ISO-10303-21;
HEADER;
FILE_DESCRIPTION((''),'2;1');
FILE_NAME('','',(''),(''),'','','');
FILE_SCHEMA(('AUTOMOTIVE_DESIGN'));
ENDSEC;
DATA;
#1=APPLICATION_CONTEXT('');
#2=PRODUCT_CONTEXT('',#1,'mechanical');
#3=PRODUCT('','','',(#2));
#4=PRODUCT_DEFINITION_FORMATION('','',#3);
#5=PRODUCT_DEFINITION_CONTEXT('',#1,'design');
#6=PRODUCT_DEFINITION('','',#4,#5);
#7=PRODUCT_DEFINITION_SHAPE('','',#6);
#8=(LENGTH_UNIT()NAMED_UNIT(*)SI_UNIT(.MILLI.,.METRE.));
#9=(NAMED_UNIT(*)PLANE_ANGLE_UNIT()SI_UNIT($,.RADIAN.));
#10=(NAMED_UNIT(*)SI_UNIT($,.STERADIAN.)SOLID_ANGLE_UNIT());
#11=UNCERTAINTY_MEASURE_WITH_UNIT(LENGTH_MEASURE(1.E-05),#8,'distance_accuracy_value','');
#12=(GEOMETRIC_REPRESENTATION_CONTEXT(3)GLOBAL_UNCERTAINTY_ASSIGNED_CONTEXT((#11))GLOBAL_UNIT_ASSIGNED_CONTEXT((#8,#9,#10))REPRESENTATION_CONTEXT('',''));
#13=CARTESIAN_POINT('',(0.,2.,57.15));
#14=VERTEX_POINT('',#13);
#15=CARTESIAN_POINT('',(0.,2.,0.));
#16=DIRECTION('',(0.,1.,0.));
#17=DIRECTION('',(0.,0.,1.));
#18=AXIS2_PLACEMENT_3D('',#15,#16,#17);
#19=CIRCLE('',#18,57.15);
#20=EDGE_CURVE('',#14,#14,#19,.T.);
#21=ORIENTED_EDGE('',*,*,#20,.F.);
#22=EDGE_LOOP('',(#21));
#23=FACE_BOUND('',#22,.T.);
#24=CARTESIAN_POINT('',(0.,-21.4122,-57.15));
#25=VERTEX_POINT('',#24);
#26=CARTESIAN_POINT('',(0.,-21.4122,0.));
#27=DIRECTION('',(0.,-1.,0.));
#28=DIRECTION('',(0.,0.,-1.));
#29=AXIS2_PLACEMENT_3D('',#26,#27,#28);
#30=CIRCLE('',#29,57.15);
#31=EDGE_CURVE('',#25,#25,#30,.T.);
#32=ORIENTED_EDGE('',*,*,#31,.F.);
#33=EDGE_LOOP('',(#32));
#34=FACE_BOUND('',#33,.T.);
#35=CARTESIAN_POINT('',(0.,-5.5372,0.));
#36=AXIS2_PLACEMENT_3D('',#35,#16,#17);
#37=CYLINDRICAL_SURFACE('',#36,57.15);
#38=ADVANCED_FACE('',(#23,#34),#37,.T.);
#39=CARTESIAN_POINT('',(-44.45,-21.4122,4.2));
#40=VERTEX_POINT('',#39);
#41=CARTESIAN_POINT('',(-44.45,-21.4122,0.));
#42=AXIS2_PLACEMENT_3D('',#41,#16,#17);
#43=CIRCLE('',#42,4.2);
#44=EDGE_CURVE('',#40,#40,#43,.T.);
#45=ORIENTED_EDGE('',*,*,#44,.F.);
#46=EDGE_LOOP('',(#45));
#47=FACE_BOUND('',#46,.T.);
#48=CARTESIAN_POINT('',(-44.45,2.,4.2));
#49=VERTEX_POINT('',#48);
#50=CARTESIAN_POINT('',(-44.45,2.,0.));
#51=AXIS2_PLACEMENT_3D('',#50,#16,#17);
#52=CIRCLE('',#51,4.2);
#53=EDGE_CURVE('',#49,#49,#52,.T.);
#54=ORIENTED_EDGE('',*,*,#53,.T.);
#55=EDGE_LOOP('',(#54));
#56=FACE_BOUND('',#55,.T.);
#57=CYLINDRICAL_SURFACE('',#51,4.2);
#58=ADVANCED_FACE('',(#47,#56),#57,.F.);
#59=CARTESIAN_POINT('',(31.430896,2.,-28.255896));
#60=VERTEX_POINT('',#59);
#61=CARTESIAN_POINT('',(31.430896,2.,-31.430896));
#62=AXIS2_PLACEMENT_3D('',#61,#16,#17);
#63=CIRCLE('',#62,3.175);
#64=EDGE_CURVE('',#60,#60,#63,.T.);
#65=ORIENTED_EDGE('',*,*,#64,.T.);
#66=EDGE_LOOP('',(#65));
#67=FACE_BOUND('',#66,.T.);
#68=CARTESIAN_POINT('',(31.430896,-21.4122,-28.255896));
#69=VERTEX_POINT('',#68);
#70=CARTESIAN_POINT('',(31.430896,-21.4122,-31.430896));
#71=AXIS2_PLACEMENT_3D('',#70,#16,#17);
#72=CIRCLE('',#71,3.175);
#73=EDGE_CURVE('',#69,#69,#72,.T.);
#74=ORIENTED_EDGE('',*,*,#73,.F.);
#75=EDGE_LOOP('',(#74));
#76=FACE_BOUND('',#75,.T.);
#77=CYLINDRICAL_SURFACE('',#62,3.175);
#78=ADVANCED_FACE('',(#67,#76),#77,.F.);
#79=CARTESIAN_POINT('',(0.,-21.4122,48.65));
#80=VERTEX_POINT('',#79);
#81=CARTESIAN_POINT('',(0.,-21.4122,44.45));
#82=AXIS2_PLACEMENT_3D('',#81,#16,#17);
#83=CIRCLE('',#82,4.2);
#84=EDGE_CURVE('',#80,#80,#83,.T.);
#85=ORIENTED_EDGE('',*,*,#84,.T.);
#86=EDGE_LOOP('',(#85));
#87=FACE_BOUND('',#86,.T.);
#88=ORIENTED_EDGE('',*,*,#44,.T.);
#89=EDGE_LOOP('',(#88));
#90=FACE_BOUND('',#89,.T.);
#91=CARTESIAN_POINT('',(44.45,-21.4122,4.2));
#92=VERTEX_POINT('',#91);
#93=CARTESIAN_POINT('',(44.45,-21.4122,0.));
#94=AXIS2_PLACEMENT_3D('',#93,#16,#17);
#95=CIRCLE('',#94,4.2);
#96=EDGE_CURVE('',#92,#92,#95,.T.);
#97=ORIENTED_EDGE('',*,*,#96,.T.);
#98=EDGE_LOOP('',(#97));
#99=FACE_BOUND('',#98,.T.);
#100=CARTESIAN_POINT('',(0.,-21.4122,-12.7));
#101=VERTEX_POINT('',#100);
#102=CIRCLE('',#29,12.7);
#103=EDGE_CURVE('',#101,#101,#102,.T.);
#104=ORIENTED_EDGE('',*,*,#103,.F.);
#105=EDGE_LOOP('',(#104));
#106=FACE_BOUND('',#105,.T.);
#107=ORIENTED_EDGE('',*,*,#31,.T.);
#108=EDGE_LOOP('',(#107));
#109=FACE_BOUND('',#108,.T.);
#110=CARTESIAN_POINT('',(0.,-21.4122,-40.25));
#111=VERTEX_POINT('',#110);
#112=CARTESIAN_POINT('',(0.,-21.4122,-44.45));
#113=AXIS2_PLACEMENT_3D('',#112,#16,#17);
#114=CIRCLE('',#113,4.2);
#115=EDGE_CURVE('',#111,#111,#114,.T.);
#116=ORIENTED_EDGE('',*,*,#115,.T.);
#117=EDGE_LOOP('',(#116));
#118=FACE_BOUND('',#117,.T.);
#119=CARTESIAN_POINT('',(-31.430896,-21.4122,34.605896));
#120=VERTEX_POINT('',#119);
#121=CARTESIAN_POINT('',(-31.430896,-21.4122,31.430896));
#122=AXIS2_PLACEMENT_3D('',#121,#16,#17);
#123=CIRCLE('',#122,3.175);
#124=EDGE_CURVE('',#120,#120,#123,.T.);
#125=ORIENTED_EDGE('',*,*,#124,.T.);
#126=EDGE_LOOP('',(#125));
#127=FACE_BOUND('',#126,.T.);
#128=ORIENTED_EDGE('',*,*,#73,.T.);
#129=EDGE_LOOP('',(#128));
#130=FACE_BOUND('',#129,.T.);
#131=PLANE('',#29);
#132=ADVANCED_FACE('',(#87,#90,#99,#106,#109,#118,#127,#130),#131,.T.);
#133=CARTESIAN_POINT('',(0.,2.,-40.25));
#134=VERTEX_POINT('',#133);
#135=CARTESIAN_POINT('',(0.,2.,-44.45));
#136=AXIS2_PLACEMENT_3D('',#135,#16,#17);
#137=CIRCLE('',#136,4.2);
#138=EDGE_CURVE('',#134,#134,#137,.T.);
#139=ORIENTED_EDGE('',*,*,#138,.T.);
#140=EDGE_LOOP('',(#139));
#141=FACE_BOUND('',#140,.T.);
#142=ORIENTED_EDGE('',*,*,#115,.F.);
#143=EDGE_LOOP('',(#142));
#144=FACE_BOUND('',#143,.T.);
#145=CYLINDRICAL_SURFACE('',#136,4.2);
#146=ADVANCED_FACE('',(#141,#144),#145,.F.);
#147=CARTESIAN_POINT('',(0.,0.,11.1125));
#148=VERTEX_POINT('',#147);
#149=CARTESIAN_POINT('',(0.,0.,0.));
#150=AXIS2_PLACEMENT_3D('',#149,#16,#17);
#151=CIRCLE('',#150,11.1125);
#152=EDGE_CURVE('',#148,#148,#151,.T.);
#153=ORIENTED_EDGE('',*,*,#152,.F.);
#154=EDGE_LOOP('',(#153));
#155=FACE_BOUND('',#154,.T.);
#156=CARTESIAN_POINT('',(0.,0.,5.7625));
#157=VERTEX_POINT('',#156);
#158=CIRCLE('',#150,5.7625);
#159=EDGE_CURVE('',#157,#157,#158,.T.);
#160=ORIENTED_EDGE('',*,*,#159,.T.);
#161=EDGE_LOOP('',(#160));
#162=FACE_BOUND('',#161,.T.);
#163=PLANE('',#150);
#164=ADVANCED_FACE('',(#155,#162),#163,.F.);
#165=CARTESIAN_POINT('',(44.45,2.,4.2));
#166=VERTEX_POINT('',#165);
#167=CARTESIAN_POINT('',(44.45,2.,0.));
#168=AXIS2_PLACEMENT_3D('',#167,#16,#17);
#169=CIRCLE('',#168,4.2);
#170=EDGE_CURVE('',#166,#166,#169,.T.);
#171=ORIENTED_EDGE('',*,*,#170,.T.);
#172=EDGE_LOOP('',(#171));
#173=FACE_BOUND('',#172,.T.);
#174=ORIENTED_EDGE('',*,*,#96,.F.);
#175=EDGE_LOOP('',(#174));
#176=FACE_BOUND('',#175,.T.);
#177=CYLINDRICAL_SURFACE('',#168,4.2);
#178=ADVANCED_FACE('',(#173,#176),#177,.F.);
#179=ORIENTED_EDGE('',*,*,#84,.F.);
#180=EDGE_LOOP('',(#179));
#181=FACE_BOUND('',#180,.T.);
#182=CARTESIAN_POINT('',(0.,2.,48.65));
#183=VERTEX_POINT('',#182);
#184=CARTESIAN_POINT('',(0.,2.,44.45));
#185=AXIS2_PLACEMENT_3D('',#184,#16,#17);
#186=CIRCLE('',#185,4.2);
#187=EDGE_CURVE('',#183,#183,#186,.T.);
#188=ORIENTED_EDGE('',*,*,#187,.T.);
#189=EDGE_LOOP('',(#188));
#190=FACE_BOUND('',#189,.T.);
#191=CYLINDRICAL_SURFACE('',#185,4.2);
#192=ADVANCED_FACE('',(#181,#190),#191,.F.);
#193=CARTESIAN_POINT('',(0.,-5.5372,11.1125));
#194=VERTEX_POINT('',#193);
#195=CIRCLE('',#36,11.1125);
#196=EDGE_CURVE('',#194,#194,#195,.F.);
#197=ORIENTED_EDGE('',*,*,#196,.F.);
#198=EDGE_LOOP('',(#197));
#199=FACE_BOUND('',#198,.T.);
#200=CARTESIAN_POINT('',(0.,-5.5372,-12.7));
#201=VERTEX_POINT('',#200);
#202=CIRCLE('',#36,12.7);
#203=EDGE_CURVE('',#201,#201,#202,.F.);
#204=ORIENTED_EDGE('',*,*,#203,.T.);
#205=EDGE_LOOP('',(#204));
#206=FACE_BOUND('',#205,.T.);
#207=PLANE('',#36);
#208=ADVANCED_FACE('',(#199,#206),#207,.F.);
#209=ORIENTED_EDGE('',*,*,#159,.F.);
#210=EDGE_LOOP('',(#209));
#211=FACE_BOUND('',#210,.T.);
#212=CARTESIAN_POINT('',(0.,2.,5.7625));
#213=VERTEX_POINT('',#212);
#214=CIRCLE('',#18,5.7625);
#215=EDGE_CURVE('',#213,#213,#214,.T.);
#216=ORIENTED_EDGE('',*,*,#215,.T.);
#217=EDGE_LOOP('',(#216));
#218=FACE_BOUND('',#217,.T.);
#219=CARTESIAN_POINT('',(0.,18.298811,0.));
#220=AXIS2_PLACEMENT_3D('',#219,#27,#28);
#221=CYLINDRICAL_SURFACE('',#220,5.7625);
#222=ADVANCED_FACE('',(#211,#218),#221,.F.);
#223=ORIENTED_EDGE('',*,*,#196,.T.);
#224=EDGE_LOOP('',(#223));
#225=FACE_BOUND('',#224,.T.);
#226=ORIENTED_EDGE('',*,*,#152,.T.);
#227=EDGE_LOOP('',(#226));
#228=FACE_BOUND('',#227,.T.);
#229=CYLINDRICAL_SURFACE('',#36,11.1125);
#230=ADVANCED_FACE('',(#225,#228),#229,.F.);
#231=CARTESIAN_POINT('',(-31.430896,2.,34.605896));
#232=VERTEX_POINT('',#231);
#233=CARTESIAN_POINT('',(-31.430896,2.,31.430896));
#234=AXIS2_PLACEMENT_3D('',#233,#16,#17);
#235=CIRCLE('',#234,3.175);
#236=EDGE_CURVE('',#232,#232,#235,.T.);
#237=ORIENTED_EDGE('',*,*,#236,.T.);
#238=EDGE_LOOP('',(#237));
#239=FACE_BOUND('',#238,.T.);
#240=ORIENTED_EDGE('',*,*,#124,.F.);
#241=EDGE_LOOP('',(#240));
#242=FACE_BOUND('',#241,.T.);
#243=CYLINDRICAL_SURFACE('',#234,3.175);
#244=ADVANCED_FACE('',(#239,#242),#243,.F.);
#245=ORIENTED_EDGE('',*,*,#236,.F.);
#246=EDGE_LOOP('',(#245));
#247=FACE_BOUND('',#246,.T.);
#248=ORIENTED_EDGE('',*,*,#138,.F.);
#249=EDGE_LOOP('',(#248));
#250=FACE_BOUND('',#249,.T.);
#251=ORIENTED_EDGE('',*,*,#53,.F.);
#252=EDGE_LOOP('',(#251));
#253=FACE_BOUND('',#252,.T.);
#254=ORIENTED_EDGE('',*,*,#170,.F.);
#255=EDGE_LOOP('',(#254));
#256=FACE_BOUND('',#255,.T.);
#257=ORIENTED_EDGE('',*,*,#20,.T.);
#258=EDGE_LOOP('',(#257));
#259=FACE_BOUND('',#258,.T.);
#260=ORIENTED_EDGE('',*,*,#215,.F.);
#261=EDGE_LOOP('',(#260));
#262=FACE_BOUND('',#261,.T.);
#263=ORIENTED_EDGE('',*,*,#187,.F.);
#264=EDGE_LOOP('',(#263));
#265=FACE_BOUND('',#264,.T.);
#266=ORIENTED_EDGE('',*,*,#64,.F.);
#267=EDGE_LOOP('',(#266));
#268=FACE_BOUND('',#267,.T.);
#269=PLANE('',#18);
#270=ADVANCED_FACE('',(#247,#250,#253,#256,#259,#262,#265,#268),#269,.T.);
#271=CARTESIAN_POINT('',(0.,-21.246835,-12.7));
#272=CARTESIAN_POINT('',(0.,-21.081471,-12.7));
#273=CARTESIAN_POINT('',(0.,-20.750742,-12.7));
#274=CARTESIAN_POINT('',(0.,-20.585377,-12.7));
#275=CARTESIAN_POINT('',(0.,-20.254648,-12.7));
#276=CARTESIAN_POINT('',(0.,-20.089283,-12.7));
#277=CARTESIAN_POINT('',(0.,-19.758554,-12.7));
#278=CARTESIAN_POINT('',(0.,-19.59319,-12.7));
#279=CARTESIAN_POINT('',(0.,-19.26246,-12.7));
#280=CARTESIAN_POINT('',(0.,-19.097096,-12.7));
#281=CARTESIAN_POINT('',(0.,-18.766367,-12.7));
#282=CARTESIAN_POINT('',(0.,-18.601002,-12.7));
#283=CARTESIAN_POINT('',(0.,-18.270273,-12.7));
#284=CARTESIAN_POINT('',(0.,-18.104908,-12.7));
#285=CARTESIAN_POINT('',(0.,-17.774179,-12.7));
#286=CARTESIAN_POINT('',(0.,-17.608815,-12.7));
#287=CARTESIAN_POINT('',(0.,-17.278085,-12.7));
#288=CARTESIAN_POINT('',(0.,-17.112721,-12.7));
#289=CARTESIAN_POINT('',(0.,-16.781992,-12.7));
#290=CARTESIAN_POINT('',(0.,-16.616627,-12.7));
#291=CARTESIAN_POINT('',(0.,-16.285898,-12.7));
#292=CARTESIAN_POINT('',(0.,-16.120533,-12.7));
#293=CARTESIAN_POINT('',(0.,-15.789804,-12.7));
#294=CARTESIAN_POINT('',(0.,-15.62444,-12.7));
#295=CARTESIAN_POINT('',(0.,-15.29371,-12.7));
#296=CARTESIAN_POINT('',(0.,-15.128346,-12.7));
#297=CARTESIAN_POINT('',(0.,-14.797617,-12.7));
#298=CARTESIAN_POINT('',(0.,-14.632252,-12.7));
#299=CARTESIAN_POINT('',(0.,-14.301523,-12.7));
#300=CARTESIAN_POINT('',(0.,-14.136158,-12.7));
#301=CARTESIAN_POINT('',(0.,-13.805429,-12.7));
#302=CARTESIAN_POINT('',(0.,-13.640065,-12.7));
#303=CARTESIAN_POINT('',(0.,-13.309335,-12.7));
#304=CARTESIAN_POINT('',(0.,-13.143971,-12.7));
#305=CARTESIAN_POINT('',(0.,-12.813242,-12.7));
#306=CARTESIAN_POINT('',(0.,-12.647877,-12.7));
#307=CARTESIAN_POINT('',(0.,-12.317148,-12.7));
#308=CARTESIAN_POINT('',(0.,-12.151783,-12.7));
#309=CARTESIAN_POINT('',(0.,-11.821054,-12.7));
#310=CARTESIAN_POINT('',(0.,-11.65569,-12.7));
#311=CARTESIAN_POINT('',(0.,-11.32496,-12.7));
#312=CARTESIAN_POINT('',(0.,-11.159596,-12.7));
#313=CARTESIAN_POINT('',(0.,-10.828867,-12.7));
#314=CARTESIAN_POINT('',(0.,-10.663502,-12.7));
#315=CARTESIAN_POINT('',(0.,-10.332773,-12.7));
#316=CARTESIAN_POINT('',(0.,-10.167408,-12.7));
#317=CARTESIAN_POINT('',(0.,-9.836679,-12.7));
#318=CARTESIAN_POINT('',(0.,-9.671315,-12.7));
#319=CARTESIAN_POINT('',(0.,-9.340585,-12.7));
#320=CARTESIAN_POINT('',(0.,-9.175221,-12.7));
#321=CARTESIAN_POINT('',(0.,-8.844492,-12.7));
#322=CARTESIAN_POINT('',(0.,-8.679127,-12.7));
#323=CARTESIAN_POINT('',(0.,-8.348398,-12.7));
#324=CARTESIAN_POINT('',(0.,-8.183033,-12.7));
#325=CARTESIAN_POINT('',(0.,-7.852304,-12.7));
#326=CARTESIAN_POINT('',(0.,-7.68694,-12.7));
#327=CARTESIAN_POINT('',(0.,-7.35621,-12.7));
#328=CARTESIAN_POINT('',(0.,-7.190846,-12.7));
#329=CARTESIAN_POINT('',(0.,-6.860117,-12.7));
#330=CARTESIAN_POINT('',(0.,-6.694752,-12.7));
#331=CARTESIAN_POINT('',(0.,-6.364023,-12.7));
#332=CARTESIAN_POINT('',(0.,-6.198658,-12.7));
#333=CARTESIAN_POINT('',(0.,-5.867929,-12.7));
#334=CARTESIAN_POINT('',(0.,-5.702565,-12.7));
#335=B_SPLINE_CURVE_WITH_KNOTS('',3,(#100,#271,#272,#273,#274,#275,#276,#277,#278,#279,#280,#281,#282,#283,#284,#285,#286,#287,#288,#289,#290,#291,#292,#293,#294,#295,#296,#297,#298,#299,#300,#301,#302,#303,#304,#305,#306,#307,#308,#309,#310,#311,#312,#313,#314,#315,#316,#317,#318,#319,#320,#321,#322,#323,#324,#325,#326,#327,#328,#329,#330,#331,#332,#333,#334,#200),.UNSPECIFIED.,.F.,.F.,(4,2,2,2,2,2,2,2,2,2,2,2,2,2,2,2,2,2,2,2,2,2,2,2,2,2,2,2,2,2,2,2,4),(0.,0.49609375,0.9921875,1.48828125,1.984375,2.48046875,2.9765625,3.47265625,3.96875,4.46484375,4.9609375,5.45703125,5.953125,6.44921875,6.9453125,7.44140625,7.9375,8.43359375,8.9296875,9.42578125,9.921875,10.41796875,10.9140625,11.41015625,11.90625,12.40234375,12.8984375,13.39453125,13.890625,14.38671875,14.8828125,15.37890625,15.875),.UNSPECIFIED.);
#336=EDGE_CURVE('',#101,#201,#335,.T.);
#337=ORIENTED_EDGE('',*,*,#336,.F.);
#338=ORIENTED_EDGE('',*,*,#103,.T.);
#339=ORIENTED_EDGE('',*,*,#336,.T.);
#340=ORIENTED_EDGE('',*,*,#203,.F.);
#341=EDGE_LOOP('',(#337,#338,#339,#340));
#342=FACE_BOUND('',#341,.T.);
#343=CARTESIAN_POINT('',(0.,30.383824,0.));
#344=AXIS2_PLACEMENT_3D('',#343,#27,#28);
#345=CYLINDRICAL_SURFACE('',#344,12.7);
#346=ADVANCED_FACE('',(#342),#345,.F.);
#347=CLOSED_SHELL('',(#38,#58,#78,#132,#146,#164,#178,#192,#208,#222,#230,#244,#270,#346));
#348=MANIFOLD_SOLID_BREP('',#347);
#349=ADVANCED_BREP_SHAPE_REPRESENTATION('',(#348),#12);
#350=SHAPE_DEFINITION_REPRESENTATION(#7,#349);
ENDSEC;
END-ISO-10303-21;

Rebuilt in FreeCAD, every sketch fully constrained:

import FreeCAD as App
import Part
import Sketcher
Q = App.Units.Quantity

doc = App.newDocument("Part")
params = doc.addObject("Spreadsheet::Sheet", "Params")
for row, (alias, value) in enumerate([
    ("sketch1_diameter", "4.5 in"),
    ("pad1_length", "0.218 in"),
    ("sketch2_diameter", "4.5 in"),
    ("pad2_length", "0.625 in"),
    ("sketch3_diameter", "4.5 in"),
    ("pad3_length", "2 mm"),
    ("sketch4_diameter", "0.875 in"),
    ("pocket1_length", "0.218 in"),
    ("pocket2_length", "2 mm"),
    ("hole_diameter", "8.4 mm"),
    ("sketch7_diameter", "0.25 in"),
    ("hole2_diameter", "0.25 in"),
    ("sketch8_diameter", "1 in"),
    ("pocket3_length", "0.625 in"),
], start=1):
    params.set(f"A{row}", alias)
    params.set(f"B{row}", "=" + value)
    params.setAlias(f"B{row}", alias)

body = doc.addObject("PartDesign::Body", "Body")

sketch1 = body.newObject("Sketcher::SketchObject", "Sketch")
sketch1.AttachmentSupport = (doc.getObject("XZ_Plane"), [""])
sketch1.MapMode = "FlatFace"
sketch1.addGeometry(Part.Circle(App.Vector(0, 0, 0), App.Vector(0, 0, 1), 57), False)
sketch1.addConstraint(Sketcher.Constraint("Coincident", 0, 3, -1, 1))
sketch1.addConstraint(Sketcher.Constraint("Diameter", 0, Q("4.5 in")))
sketch1.setExpression("Constraints[1]", "Params.sketch1_diameter")
pad1 = body.newObject("PartDesign::Pad", "Pad")
pad1.Profile = sketch1
pad1.setExpression("Length", "Params.pad1_length")

sketch2 = body.newObject("Sketcher::SketchObject", "Sketch001")
sketch2.AttachmentSupport = (doc.getObject("XZ_Plane"), [""])
sketch2.MapMode = "FlatFace"
sketch2.AttachmentOffset = App.Placement(App.Vector(0, 0, 0.218 * 25.4), App.Rotation())
sketch2.addGeometry(Part.Circle(App.Vector(0, 0, 0), App.Vector(0, 0, 1), 57), False)
sketch2.addConstraint(Sketcher.Constraint("Coincident", 0, 3, -1, 1))
sketch2.addConstraint(Sketcher.Constraint("Diameter", 0, Q("4.5 in")))
sketch2.setExpression("Constraints[1]", "Params.sketch2_diameter")
pad2 = body.newObject("PartDesign::Pad", "Pad001")
pad2.Profile = sketch2
pad2.setExpression("Length", "Params.pad2_length")

sketch3 = body.newObject("Sketcher::SketchObject", "Sketch002")
sketch3.AttachmentSupport = (doc.getObject("XZ_Plane"), [""])
sketch3.MapMode = "FlatFace"
sketch3.AttachmentOffset = App.Placement(App.Vector(0, 0, -2), App.Rotation())
sketch3.addGeometry(Part.Circle(App.Vector(0, 0, 0), App.Vector(0, 0, 1), 57), False)
sketch3.addConstraint(Sketcher.Constraint("Coincident", 0, 3, -1, 1))
sketch3.addConstraint(Sketcher.Constraint("Diameter", 0, Q("4.5 in")))
sketch3.setExpression("Constraints[1]", "Params.sketch3_diameter")
pad3 = body.newObject("PartDesign::Pad", "Pad002")
pad3.Profile = sketch3
pad3.setExpression("Length", "Params.pad3_length")

sketch4 = body.newObject("Sketcher::SketchObject", "Sketch003")
sketch4.AttachmentSupport = (doc.getObject("XZ_Plane"), [""])
sketch4.MapMode = "FlatFace"
sketch4.addGeometry(Part.Circle(App.Vector(0, 0, 0), App.Vector(0, 0, 1), 11), False)
sketch4.addConstraint(Sketcher.Constraint("Coincident", 0, 3, -1, 1))
sketch4.addConstraint(Sketcher.Constraint("Diameter", 0, Q("0.875 in")))
sketch4.setExpression("Constraints[1]", "Params.sketch4_diameter")
pocket1 = body.newObject("PartDesign::Pocket", "Pocket")
pocket1.Profile = sketch4
pocket1.setExpression("Length", "Params.pocket1_length")
pocket1.Reversed = True

sketch5 = body.newObject("Sketcher::SketchObject", "Sketch004")
sketch5.AttachmentSupport = (doc.getObject("XZ_Plane"), [""])
sketch5.MapMode = "FlatFace"
sketch5.addGeometry(Part.Circle(App.Vector(0, 0, 0), App.Vector(0, 0, 1), 6), False)
sketch5.addConstraint(Sketcher.Constraint("Coincident", 0, 3, -1, 1))
sketch5.addConstraint(Sketcher.Constraint("Diameter", 0, Q("11.525 mm")))
pocket2 = body.newObject("PartDesign::Pocket", "Pocket001")
pocket2.Profile = sketch5
pocket2.setExpression("Length", "Params.pocket2_length")

sketch6 = body.newObject("Sketcher::SketchObject", "Sketch005")
sketch6.AttachmentSupport = (doc.getObject("XZ_Plane"), [""])
sketch6.MapMode = "FlatFace"
sketch6.AttachmentOffset = App.Placement(App.Vector(0, 0, -2), App.Rotation())
sketch6.addGeometry(Part.Circle(App.Vector(-44.5, 0, 0), App.Vector(0, 0, 1), 4.2), False)
sketch6.addGeometry(Part.Circle(App.Vector(0, -44.5, 0), App.Vector(0, 0, 1), 4.2), False)
sketch6.addGeometry(Part.Circle(App.Vector(44.5, 0, 0), App.Vector(0, 0, 1), 4.2), False)
sketch6.addGeometry(Part.Circle(App.Vector(0, 44.5, 0), App.Vector(0, 0, 1), 4.2), False)
sketch6.addConstraint(Sketcher.Constraint("Equal", 0, 1))
sketch6.addConstraint(Sketcher.Constraint("Equal", 1, 2))
sketch6.addConstraint(Sketcher.Constraint("Equal", 2, 3))
sketch6.addConstraint(Sketcher.Constraint("Symmetric", 0, 3, 2, 3, -1, 1))
sketch6.addConstraint(Sketcher.Constraint("Symmetric", 1, 3, 3, 3, -1, 1))
sketch6.addConstraint(Sketcher.Constraint("PointOnObject", 0, 3, -1))
sketch6.addConstraint(Sketcher.Constraint("PointOnObject", 1, 3, -2))
sketch6.addConstraint(Sketcher.Constraint("DistanceX", 0, 3, 2, 3, Q("3.5 in")))
sketch6.addConstraint(Sketcher.Constraint("DistanceY", 1, 3, 3, 3, Q("3.5 in")))
sketch6.addConstraint(Sketcher.Constraint("Diameter", 0, Q("8.4 mm")))
doc.recompute()
hole = body.newObject("PartDesign::Hole", "Hole")
hole.Profile = sketch6
hole.ThreadType = "None"
hole.setExpression("Diameter", "Params.hole_diameter")
hole.DepthType = "ThroughAll"
hole.Reversed = True

sketch7 = body.newObject("Sketcher::SketchObject", "Sketch006")
sketch7.AttachmentSupport = (doc.getObject("XZ_Plane"), [""])
sketch7.MapMode = "FlatFace"
sketch7.AttachmentOffset = App.Placement(App.Vector(0, 0, -2), App.Rotation())
sketch7.addGeometry(Part.Circle(App.Vector(31.4, -31.4, 0), App.Vector(0, 0, 1), 3.2), False)
sketch7.addGeometry(Part.Circle(App.Vector(-31.4, 31.4, 0), App.Vector(0, 0, 1), 3.2), False)
sketch7.addConstraint(Sketcher.Constraint("Equal", 0, 1))
sketch7.addConstraint(Sketcher.Constraint("Symmetric", 0, 3, 1, 3, -1, 1))
sketch7.addConstraint(Sketcher.Constraint("Diameter", 0, Q("0.25 in")))
sketch7.addConstraint(Sketcher.Constraint("DistanceX", -1, 1, 0, 3, Q("31.430896 mm")))
sketch7.addConstraint(Sketcher.Constraint("DistanceY", 0, 3, -1, 1, Q("31.430896 mm")))
sketch7.setExpression("Constraints[2]", "Params.sketch7_diameter")
doc.recompute()
hole2 = body.newObject("PartDesign::Hole", "Hole001")
hole2.Profile = sketch7
hole2.ThreadType = "None"
hole2.setExpression("Diameter", "Params.hole2_diameter")
hole2.DepthType = "ThroughAll"
hole2.Reversed = True

sketch8 = body.newObject("Sketcher::SketchObject", "Sketch007")
sketch8.AttachmentSupport = (doc.getObject("XZ_Plane"), [""])
sketch8.MapMode = "FlatFace"
sketch8.AttachmentOffset = App.Placement(App.Vector(0, 0, 0.843 * 25.4), App.Rotation())
sketch8.addGeometry(Part.Circle(App.Vector(0, 0, 0), App.Vector(0, 0, 1), 13), False)
sketch8.addConstraint(Sketcher.Constraint("Coincident", 0, 3, -1, 1))
sketch8.addConstraint(Sketcher.Constraint("Diameter", 0, Q("1 in")))
sketch8.setExpression("Constraints[1]", "Params.sketch8_diameter")
pocket3 = body.newObject("PartDesign::Pocket", "Pocket002")
pocket3.Profile = sketch8
pocket3.setExpression("Length", "Params.pocket3_length")

doc.recompute()
